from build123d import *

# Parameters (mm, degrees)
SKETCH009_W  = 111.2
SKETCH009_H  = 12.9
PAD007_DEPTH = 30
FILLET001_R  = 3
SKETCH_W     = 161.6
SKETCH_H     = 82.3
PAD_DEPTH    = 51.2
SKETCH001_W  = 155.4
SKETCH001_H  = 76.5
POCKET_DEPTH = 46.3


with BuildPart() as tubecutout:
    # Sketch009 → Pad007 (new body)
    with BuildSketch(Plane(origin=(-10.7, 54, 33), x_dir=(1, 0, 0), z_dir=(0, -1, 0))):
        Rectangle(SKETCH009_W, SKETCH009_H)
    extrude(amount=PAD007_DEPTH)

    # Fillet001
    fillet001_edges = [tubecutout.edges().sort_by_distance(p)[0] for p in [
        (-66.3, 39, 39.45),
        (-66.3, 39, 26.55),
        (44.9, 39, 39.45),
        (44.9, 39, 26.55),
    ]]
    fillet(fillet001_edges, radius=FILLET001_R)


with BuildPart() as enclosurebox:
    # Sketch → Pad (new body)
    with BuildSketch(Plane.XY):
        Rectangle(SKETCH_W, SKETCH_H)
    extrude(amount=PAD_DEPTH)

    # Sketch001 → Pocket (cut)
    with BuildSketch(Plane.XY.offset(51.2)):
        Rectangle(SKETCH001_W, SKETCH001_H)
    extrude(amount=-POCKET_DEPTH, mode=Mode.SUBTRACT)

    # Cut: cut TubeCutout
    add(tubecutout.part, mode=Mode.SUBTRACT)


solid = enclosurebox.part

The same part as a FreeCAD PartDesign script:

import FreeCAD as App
import Part
import Sketcher
from FreeCAD import Vector
Q = App.Units.Quantity


def edges_at(feature, points):
    """Names of the edges that pass closest to the given points."""
    edges = feature.Shape.Edges
    near = lambda p: min(range(len(edges)), key=lambda i: edges[i].distToShape(Part.Vertex(*p))[0])
    return sorted({f"Edge{near(p) + 1}" for p in points})

doc = App.newDocument("Part")
body = doc.addObject("PartDesign::Body", "Body")

# Sketch on XZ plane
sketch1 = body.newObject("Sketcher::SketchObject", "Sketch")
sketch1.AttachmentSupport = (doc.getObject("XZ_Plane"), [""])
sketch1.MapMode = "FlatFace"
sketch1.AttachmentOffset = App.Placement(Vector(0, 0, -54), App.Rotation())
sketch1.addGeometry(Part.LineSegment(Vector(-66.3, 39.45, 0), Vector(-66.3, 26.55, 0)), False)
sketch1.addGeometry(Part.LineSegment(Vector(-66.3, 26.55, 0), Vector(44.9, 26.55, 0)), False)
sketch1.addGeometry(Part.LineSegment(Vector(44.9, 26.55, 0), Vector(44.9, 39.45, 0)), False)
sketch1.addGeometry(Part.LineSegment(Vector(44.9, 39.45, 0), Vector(-66.3, 39.45, 0)), False)
sketch1.addConstraint(Sketcher.Constraint("Coincident", 0, 2, 1, 1))
sketch1.addConstraint(Sketcher.Constraint("Coincident", 1, 2, 2, 1))
sketch1.addConstraint(Sketcher.Constraint("Coincident", 2, 2, 3, 1))
sketch1.addConstraint(Sketcher.Constraint("Coincident", 3, 2, 0, 1))
sketch1.addConstraint(Sketcher.Constraint("Vertical", 0))
sketch1.addConstraint(Sketcher.Constraint("Horizontal", 1))
sketch1.addConstraint(Sketcher.Constraint("Vertical", 2))
sketch1.addConstraint(Sketcher.Constraint("Horizontal", 3))
sketch1.addConstraint(Sketcher.Constraint("DistanceX", 1, 1, 1, 2, Q("111.2 mm")))
sketch1.addConstraint(Sketcher.Constraint("DistanceY", 0, 2, 0, 1, Q("12.9 mm")))
sketch1.addConstraint(Sketcher.Constraint("DistanceX", 0, 2, -1, 1, Q("66.3 mm")))
sketch1.addConstraint(Sketcher.Constraint("DistanceY", -1, 1, 0, 2, Q("26.55 mm")))
pad1 = body.newObject("PartDesign::Pad", "Pad")
pad1.Profile = sketch1
pad1.Length = 30
doc.recompute()

fillet = body.newObject("PartDesign::Fillet", "Fillet")
fillet.Base = (pad1, edges_at(pad1, [
    (-66.3, 39, 39.45),
    (-66.3, 39, 26.55),
    (44.9, 39, 39.45),
    (44.9, 39, 26.55),
]))
fillet.Radius = 3
body2 = doc.addObject("PartDesign::Body", "Body001")

# Sketch on XY plane
sketch2 = body2.newObject("Sketcher::SketchObject", "Sketch001")
sketch2.AttachmentSupport = (doc.getObject("XY_Plane001"), [""])
sketch2.MapMode = "FlatFace"
sketch2.addGeometry(Part.LineSegment(Vector(-80.8, 41.15, 0), Vector(-80.8, -41.15, 0)), False)
sketch2.addGeometry(Part.LineSegment(Vector(-80.8, -41.15, 0), Vector(80.8, -41.15, 0)), False)
sketch2.addGeometry(Part.LineSegment(Vector(80.8, -41.15, 0), Vector(80.8, 41.15, 0)), False)
sketch2.addGeometry(Part.LineSegment(Vector(80.8, 41.15, 0), Vector(-80.8, 41.15, 0)), False)
sketch2.addConstraint(Sketcher.Constraint("Coincident", 0, 2, 1, 1))
sketch2.addConstraint(Sketcher.Constraint("Coincident", 1, 2, 2, 1))
sketch2.addConstraint(Sketcher.Constraint("Coincident", 2, 2, 3, 1))
sketch2.addConstraint(Sketcher.Constraint("Coincident", 3, 2, 0, 1))
sketch2.addConstraint(Sketcher.Constraint("Vertical", 0))
sketch2.addConstraint(Sketcher.Constraint("Horizontal", 1))
sketch2.addConstraint(Sketcher.Constraint("Vertical", 2))
sketch2.addConstraint(Sketcher.Constraint("Horizontal", 3))
sketch2.addConstraint(Sketcher.Constraint("Symmetric", 0, 2, 2, 2, -1, 1))
sketch2.addConstraint(Sketcher.Constraint("DistanceX", 1, 1, 1, 2, Q("161.6 mm")))
sketch2.addConstraint(Sketcher.Constraint("DistanceY", 0, 2, 0, 1, Q("82.3 mm")))
pad2 = body2.newObject("PartDesign::Pad", "Pad001")
pad2.Profile = sketch2
pad2.Length = 51.2

# Sketch on XY plane
sketch3 = body2.newObject("Sketcher::SketchObject", "Sketch002")
sketch3.AttachmentSupport = (doc.getObject("XY_Plane001"), [""])
sketch3.MapMode = "FlatFace"
sketch3.AttachmentOffset = App.Placement(Vector(0, 0, 51.2), App.Rotation())
sketch3.addGeometry(Part.LineSegment(Vector(-77.7, 38.25, 0), Vector(-77.7, -38.25, 0)), False)
sketch3.addGeometry(Part.LineSegment(Vector(-77.7, -38.25, 0), Vector(77.7, -38.25, 0)), False)
sketch3.addGeometry(Part.LineSegment(Vector(77.7, -38.25, 0), Vector(77.7, 38.25, 0)), False)
sketch3.addGeometry(Part.LineSegment(Vector(77.7, 38.25, 0), Vector(-77.7, 38.25, 0)), False)
sketch3.addConstraint(Sketcher.Constraint("Coincident", 0, 2, 1, 1))
sketch3.addConstraint(Sketcher.Constraint("Coincident", 1, 2, 2, 1))
sketch3.addConstraint(Sketcher.Constraint("Coincident", 2, 2, 3, 1))
sketch3.addConstraint(Sketcher.Constraint("Coincident", 3, 2, 0, 1))
sketch3.addConstraint(Sketcher.Constraint("Vertical", 0))
sketch3.addConstraint(Sketcher.Constraint("Horizontal", 1))
sketch3.addConstraint(Sketcher.Constraint("Vertical", 2))
sketch3.addConstraint(Sketcher.Constraint("Horizontal", 3))
sketch3.addConstraint(Sketcher.Constraint("Symmetric", 0, 2, 2, 2, -1, 1))
sketch3.addConstraint(Sketcher.Constraint("DistanceX", 1, 1, 1, 2, Q("155.4 mm")))
sketch3.addConstraint(Sketcher.Constraint("DistanceY", 0, 2, 0, 1, Q("76.5 mm")))
pocket1 = body2.newObject("PartDesign::Pocket", "Pocket")
pocket1.Profile = sketch3
pocket1.Length = 46.3
doc.recompute()

boolean = body2.newObject("PartDesign::Boolean", "Boolean")
boolean.Type = "Cut"
boolean.addObjects([body])

doc.recompute()
